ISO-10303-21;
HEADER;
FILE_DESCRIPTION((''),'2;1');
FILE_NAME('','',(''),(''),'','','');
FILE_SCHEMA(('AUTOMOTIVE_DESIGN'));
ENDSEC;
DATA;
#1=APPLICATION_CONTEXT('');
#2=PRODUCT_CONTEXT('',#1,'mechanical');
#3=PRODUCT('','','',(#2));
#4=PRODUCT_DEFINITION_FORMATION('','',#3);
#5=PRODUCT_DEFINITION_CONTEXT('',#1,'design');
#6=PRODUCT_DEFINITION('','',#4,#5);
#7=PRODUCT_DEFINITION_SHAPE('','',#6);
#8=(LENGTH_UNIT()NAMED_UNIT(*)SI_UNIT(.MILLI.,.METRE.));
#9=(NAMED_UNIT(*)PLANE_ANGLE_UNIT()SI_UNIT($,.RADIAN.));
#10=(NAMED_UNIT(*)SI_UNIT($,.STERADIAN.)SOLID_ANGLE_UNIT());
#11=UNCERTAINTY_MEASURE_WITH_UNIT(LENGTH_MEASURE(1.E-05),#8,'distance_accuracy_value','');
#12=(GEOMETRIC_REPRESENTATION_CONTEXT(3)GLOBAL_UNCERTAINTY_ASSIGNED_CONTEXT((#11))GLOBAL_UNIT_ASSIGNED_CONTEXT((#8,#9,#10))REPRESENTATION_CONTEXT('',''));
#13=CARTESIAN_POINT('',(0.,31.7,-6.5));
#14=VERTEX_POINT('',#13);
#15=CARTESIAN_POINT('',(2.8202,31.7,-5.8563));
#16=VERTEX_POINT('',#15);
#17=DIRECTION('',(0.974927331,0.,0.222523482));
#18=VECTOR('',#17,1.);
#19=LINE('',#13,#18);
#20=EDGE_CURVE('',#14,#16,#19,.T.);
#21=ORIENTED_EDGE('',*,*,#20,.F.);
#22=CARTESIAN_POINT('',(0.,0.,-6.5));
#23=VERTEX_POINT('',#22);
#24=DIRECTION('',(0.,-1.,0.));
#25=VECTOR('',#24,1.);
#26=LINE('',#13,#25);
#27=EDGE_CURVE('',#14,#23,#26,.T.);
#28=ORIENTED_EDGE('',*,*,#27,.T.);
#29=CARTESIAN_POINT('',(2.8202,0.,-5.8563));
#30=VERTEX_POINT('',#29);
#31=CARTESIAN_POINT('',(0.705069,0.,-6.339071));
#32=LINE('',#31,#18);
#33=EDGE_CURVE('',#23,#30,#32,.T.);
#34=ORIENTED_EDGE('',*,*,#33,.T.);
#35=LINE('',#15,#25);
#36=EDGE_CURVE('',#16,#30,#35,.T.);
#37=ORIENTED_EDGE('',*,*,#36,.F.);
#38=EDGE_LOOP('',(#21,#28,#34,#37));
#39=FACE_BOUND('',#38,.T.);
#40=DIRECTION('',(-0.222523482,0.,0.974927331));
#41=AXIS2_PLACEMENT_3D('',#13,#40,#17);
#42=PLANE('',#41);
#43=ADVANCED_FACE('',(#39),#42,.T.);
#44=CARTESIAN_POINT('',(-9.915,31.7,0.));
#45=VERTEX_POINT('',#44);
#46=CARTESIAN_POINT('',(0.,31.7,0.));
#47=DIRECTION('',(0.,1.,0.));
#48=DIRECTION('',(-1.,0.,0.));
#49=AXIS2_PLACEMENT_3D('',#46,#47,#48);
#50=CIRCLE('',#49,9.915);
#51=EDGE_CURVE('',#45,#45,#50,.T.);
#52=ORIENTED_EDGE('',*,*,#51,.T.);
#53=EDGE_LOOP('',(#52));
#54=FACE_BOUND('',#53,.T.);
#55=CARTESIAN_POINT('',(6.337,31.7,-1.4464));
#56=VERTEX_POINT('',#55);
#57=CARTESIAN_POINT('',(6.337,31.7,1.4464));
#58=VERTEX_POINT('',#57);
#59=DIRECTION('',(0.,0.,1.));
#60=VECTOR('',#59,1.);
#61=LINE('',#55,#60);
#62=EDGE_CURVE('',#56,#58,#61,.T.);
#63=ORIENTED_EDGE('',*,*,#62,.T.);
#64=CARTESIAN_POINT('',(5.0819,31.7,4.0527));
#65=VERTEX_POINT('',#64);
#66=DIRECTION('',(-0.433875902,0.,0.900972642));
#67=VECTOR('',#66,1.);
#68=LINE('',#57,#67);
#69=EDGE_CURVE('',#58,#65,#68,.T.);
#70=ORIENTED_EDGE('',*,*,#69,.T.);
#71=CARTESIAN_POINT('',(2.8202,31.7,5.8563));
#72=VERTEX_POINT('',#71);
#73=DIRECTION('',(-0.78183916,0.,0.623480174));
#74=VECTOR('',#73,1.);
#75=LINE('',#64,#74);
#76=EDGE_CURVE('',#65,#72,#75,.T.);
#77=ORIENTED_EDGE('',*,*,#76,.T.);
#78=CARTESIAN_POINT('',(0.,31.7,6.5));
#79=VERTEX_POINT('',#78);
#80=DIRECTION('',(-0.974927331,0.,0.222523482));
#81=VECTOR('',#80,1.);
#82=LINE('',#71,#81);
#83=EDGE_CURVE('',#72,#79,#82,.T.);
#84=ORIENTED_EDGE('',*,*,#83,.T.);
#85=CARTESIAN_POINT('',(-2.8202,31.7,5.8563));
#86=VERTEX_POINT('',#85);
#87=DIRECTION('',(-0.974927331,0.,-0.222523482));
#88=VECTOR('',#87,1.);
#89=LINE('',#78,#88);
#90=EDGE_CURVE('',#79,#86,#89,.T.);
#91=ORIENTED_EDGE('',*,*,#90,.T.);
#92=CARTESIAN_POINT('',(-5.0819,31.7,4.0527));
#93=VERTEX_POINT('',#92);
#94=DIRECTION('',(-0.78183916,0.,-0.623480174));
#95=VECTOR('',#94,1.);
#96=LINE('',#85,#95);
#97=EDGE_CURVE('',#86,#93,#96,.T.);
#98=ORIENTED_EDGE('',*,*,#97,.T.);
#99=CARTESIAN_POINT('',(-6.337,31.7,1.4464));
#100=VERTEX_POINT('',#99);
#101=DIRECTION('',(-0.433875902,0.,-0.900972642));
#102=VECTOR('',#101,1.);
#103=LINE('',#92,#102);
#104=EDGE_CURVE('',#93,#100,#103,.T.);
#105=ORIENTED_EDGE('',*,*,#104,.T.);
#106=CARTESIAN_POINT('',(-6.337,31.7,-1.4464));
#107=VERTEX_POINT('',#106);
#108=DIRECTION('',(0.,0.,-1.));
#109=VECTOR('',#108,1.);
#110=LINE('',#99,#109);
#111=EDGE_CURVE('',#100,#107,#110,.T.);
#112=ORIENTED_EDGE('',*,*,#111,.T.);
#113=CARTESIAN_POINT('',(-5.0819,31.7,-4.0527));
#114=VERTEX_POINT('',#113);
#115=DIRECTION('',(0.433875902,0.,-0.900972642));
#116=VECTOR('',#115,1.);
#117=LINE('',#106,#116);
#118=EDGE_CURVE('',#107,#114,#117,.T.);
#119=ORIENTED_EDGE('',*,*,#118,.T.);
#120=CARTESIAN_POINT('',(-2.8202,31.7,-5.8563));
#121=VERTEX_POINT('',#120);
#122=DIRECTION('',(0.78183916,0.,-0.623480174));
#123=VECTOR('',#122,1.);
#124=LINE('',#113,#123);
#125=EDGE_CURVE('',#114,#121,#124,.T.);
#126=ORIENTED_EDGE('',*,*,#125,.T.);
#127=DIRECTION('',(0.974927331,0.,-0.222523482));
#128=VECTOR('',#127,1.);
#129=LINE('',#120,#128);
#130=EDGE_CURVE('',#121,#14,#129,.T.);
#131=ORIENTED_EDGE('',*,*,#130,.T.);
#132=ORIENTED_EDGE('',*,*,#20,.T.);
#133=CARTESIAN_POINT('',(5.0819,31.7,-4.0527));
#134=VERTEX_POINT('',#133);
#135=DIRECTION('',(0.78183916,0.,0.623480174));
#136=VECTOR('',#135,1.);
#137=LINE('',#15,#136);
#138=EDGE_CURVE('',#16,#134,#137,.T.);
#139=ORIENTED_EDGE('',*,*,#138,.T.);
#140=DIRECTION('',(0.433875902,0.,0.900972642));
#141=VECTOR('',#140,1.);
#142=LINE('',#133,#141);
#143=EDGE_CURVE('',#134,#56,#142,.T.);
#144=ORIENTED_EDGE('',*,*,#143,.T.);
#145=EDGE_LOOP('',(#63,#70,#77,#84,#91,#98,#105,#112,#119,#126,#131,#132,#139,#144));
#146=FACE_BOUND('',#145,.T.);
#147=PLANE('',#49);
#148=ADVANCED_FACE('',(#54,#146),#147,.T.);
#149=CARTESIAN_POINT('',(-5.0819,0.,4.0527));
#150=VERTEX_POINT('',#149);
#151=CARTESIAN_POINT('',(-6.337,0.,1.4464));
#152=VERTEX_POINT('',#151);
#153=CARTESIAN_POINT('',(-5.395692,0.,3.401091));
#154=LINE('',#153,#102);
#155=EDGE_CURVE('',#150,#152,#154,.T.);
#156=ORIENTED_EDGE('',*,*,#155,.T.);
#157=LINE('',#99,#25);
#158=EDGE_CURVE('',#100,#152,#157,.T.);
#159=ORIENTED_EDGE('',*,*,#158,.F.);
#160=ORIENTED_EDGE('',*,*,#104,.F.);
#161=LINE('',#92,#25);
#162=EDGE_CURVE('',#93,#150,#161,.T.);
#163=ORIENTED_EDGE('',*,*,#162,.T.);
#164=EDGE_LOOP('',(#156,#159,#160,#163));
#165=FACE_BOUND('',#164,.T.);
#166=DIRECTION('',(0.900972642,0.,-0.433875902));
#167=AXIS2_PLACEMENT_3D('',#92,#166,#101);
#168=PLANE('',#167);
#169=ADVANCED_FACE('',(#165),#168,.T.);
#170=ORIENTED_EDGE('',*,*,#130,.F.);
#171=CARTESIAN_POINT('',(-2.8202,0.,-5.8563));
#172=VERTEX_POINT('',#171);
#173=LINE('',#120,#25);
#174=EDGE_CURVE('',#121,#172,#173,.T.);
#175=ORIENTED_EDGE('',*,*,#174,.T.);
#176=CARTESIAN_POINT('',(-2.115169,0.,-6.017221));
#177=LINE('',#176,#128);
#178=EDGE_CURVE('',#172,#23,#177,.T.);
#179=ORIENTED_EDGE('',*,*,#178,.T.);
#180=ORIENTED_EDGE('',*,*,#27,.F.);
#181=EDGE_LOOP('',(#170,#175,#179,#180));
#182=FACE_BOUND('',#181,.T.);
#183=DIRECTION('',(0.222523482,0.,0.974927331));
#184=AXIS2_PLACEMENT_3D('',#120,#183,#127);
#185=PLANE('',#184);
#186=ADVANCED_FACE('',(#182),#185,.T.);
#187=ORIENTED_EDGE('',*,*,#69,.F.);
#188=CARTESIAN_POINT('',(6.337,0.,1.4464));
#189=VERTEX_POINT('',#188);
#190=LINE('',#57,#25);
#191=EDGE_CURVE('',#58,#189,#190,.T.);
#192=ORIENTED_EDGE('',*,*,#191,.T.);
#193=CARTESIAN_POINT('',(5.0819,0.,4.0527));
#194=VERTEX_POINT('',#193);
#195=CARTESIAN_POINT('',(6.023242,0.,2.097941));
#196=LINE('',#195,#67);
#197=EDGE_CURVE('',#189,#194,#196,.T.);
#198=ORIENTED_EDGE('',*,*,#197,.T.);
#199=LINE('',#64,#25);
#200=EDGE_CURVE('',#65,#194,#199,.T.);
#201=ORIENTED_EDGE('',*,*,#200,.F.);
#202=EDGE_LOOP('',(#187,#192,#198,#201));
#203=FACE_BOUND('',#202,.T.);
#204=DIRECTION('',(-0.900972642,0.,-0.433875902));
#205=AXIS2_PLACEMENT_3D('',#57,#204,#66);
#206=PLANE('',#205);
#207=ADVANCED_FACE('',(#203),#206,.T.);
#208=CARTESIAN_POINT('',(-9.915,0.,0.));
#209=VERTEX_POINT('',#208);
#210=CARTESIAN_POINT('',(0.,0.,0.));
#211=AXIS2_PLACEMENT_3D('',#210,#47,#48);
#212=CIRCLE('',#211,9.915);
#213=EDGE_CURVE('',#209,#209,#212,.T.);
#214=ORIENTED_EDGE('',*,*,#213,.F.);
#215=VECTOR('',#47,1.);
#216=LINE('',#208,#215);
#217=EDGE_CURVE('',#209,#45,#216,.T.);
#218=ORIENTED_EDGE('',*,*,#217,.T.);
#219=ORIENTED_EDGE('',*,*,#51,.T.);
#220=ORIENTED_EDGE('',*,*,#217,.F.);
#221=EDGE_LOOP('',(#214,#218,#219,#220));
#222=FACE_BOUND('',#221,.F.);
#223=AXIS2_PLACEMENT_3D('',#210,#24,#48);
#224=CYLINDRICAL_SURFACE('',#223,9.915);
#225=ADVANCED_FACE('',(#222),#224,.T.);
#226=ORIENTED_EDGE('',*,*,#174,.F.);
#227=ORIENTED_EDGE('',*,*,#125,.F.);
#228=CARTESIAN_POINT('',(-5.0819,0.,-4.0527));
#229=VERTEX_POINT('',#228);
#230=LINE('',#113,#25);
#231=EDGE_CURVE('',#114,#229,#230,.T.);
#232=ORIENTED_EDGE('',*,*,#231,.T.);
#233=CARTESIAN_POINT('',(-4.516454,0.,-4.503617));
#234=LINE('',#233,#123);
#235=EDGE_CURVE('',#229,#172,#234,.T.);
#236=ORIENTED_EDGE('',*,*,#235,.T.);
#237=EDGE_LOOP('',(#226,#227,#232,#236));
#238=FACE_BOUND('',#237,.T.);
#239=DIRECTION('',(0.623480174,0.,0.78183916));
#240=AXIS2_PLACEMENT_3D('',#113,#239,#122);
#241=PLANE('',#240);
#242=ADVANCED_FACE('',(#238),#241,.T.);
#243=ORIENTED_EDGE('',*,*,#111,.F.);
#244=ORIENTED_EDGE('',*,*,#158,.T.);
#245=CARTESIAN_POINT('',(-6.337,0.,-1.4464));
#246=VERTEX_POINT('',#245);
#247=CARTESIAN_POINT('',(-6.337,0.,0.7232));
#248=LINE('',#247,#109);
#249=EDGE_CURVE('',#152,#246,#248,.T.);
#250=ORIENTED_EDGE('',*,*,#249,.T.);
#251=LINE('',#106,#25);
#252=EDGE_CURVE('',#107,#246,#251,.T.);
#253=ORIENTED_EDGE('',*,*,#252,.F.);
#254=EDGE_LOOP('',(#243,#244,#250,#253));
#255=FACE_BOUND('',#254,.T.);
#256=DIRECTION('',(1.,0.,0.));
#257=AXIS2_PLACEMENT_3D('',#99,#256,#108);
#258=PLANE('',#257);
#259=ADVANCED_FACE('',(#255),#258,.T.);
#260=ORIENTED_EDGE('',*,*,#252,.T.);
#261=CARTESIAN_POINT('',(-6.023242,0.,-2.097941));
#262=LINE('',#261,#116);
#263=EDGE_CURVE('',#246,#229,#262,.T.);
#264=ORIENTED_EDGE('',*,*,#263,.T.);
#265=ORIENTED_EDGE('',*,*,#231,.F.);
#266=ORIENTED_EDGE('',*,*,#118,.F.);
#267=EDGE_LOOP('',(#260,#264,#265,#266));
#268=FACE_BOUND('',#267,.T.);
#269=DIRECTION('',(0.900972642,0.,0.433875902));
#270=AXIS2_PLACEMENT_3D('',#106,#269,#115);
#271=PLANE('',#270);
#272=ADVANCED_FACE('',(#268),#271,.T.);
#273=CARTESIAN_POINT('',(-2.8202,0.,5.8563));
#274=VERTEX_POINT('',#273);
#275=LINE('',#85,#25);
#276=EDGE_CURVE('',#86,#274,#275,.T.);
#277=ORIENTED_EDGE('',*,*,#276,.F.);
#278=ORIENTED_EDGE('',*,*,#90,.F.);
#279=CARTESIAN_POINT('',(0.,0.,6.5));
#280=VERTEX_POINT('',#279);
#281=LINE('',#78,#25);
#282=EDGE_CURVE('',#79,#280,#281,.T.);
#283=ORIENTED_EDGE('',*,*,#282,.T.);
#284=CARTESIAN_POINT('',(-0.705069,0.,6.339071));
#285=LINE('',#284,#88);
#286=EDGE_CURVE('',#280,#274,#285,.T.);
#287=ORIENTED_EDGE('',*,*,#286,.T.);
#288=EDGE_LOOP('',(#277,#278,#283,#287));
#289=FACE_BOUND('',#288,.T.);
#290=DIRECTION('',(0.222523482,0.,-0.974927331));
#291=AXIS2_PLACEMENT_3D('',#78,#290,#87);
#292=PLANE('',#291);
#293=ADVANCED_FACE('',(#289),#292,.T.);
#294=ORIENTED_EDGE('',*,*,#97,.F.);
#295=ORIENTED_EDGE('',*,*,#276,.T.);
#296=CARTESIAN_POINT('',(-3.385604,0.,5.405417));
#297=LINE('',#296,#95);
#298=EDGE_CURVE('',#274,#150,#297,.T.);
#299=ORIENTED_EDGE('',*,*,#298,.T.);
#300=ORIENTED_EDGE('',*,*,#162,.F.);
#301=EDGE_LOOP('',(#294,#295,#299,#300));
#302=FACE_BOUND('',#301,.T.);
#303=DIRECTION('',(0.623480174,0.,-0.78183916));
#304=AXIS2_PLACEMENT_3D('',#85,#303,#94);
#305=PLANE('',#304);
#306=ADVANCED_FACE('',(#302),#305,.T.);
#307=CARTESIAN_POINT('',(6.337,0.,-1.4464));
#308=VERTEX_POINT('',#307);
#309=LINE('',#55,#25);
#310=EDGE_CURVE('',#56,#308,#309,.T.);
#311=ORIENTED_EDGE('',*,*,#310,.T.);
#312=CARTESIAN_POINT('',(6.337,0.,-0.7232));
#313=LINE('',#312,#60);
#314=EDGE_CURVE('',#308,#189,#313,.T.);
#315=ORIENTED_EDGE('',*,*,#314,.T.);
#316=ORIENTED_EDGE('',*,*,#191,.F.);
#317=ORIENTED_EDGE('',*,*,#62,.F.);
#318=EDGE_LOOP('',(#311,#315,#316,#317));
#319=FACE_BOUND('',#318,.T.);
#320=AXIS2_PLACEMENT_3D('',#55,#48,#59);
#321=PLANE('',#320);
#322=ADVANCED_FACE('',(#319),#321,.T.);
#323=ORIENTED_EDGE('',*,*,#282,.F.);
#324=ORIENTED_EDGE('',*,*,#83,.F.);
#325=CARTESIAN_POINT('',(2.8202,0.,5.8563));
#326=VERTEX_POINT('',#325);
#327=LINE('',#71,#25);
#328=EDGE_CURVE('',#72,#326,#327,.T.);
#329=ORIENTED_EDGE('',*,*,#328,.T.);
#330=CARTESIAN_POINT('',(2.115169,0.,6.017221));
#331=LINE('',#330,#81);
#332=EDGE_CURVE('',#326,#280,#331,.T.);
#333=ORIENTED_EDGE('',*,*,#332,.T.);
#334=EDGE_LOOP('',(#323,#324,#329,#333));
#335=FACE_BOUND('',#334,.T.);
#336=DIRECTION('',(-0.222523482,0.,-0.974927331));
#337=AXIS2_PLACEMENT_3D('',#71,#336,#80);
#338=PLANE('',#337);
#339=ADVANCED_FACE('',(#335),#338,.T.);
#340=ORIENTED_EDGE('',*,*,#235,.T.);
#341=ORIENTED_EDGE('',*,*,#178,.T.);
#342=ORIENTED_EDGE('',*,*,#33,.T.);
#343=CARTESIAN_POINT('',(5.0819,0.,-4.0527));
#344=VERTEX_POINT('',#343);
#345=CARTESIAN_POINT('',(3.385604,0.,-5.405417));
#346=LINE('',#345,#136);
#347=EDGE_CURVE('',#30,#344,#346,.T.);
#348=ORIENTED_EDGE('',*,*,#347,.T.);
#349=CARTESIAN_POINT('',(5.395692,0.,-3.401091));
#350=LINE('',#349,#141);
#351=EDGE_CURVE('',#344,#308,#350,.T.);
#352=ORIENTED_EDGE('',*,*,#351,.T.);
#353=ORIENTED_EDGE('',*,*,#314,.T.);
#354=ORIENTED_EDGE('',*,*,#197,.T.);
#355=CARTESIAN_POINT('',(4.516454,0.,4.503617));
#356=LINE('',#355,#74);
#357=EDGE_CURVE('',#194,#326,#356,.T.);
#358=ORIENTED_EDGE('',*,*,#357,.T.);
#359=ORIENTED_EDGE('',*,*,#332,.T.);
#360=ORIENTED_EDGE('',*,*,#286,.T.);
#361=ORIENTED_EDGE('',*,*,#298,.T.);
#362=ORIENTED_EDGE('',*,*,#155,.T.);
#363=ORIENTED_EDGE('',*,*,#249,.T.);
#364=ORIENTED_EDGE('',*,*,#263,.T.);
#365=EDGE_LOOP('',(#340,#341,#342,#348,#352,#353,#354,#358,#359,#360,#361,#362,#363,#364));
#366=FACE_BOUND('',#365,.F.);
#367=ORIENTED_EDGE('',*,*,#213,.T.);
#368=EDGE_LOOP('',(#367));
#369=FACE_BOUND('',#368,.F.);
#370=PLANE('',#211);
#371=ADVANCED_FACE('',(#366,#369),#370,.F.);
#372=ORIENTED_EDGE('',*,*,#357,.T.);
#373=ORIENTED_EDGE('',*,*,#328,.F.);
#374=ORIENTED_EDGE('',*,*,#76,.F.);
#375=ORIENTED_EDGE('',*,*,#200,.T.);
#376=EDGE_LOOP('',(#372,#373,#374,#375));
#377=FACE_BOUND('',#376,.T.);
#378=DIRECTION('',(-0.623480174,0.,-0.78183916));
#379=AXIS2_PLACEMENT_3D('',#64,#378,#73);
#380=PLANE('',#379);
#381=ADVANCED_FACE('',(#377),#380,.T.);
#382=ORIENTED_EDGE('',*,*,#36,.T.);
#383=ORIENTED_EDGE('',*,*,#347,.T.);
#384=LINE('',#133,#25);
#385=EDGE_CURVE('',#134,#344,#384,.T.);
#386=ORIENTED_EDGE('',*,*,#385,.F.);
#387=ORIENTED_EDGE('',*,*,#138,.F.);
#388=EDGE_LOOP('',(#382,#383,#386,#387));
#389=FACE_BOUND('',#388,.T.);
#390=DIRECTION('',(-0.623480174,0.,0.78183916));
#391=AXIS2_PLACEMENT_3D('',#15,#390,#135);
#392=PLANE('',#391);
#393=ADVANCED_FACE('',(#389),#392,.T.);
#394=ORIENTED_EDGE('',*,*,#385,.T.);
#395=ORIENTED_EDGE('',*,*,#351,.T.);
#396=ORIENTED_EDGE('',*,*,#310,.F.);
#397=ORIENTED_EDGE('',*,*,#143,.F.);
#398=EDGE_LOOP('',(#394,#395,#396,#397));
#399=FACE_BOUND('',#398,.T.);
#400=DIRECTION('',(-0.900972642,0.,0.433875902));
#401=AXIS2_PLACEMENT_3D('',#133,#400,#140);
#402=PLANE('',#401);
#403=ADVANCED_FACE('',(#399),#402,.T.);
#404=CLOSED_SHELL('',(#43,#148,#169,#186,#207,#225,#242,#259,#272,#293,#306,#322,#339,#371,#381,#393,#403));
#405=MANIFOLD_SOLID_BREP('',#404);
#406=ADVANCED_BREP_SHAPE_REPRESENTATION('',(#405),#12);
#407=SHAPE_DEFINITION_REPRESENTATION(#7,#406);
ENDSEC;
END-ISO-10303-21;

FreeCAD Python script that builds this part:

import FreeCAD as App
import Part
import Sketcher

V = App.Vector
Q = App.Units.Quantity

doc = App.newDocument("Part")
body = doc.addObject("PartDesign::Body", "Body")

# Sketch on XZ plane
sketch1 = body.newObject("Sketcher::SketchObject", "Sketch")
sketch1.AttachmentSupport = (doc.getObject("XZ_Plane"), [""])
sketch1.MapMode = "FlatFace"
sketch1.addGeometry(Part.Circle(V(0, 0, 0), V(0, 0, 1), 10), False)
sketch1.addConstraint([
    Sketcher.Constraint("Coincident", 0, 3, -1, 1),
    Sketcher.Constraint("Diameter", 0, Q("19.83 mm")),
])
pad1 = body.newObject("PartDesign::Pad", "Pad")
pad1.Profile = sketch1
pad1.Length = 31.7
pad1.Reversed = True

# Sketch on XZ plane
sketch2 = body.newObject("Sketcher::SketchObject", "Sketch001")
sketch2.AttachmentSupport = (doc.getObject("XZ_Plane"), [""])
sketch2.MapMode = "FlatFace"
sketch2.AttachmentOffset = App.Placement(V(0, 0, -31.7), App.Rotation())
sketch2.addGeometry([
    Part.LineSegment(V(5.1, 4.1, 0), V(6.3, 1.4, 0)),  # 0
    Part.LineSegment(V(6.3, 1.4, 0), V(6.3, -1.4, 0)),  # 1
    Part.LineSegment(V(6.3, -1.4, 0), V(5.1, -4.1, 0)),  # 2
    Part.LineSegment(V(5.1, -4.1, 0), V(2.8, -5.9, 0)),  # 3
    Part.LineSegment(V(2.8, -5.9, 0), V(0, -6.5, 0)),  # 4
    Part.LineSegment(V(0, -6.5, 0), V(-2.8, -5.9, 0)),  # 5
    Part.LineSegment(V(-2.8, -5.9, 0), V(-5.1, -4.1, 0)),  # 6
    Part.LineSegment(V(-5.1, -4.1, 0), V(-6.3, -1.4, 0)),  # 7
    Part.LineSegment(V(-6.3, -1.4, 0), V(-6.3, 1.4, 0)),  # 8
    Part.LineSegment(V(-6.3, 1.4, 0), V(-5.1, 4.1, 0)),  # 9
    Part.LineSegment(V(-5.1, 4.1, 0), V(-2.8, 5.9, 0)),  # 10
    Part.LineSegment(V(-2.8, 5.9, 0), V(0, 6.5, 0)),  # 11
    Part.LineSegment(V(0, 6.5, 0), V(2.8, 5.9, 0)),  # 12
    Part.LineSegment(V(2.8, 5.9, 0), V(5.1, 4.1, 0)),  # 13
], False)
sketch2.addConstraint([
    Sketcher.Constraint("Coincident", 0, 2, 1, 1),
    Sketcher.Constraint("Coincident", 1, 2, 2, 1),
    Sketcher.Constraint("Coincident", 2, 2, 3, 1),
    Sketcher.Constraint("Coincident", 3, 2, 4, 1),
    Sketcher.Constraint("Coincident", 4, 2, 5, 1),
    Sketcher.Constraint("Coincident", 5, 2, 6, 1),
    Sketcher.Constraint("Coincident", 6, 2, 7, 1),
    Sketcher.Constraint("Coincident", 7, 2, 8, 1),
    Sketcher.Constraint("Coincident", 8, 2, 9, 1),
    Sketcher.Constraint("Coincident", 9, 2, 10, 1),
    Sketcher.Constraint("Coincident", 10, 2, 11, 1),
    Sketcher.Constraint("Coincident", 11, 2, 12, 1),
    Sketcher.Constraint("Coincident", 12, 2, 13, 1),
    Sketcher.Constraint("Coincident", 13, 2, 0, 1),
    Sketcher.Constraint("Vertical", 1),
    Sketcher.Constraint("Vertical", 8),
    Sketcher.Constraint("Symmetric", 0, 2, 7, 2, -1, 1),
    Sketcher.Constraint("Symmetric", 2, 2, 9, 2, -1, 1),
    Sketcher.Constraint("Symmetric", 3, 2, 10, 2, -1, 1),
    Sketcher.Constraint("Symmetric", 4, 2, 11, 2, -1, 1),
    Sketcher.Constraint("Symmetric", 5, 2, 12, 2, -1, 1),
    Sketcher.Constraint("Symmetric", 6, 2, 13, 2, -1, 1),
    Sketcher.Constraint("Symmetric", 3, 2, 5, 2, -2),
    Sketcher.Constraint("Symmetric", 2, 2, 6, 2, -2),
    Sketcher.Constraint("PointOnObject", 4, 2, -2),
    Sketcher.Constraint("Parallel", 2, 9),
    Sketcher.Constraint("Horizontal", 1, 2, 7, 2),
    Sketcher.Constraint("Equal", 2, 3),
    Sketcher.Constraint("Equal", 3, 4),
    Sketcher.Constraint("DistanceY", 4, 2, -1, 1, Q("6.5 mm")),
    Sketcher.Constraint("Angle", 3, Q("-141.4293 deg")),
    Sketcher.Constraint("DistanceY", 3, 2, 1, 2, Q("4.41 mm")),
    Sketcher.Constraint("DistanceY", 1, 2, 1, 1, Q("2.8928 mm")),
    Sketcher.Constraint("DistanceX", -1, 1, 0, 2, Q("6.337 mm")),
])
pocket1 = body.newObject("PartDesign::Pocket", "Pocket")
pocket1.Profile = sketch2
pocket1.Length = 40
pocket1.Reversed = True

doc.recompute()
